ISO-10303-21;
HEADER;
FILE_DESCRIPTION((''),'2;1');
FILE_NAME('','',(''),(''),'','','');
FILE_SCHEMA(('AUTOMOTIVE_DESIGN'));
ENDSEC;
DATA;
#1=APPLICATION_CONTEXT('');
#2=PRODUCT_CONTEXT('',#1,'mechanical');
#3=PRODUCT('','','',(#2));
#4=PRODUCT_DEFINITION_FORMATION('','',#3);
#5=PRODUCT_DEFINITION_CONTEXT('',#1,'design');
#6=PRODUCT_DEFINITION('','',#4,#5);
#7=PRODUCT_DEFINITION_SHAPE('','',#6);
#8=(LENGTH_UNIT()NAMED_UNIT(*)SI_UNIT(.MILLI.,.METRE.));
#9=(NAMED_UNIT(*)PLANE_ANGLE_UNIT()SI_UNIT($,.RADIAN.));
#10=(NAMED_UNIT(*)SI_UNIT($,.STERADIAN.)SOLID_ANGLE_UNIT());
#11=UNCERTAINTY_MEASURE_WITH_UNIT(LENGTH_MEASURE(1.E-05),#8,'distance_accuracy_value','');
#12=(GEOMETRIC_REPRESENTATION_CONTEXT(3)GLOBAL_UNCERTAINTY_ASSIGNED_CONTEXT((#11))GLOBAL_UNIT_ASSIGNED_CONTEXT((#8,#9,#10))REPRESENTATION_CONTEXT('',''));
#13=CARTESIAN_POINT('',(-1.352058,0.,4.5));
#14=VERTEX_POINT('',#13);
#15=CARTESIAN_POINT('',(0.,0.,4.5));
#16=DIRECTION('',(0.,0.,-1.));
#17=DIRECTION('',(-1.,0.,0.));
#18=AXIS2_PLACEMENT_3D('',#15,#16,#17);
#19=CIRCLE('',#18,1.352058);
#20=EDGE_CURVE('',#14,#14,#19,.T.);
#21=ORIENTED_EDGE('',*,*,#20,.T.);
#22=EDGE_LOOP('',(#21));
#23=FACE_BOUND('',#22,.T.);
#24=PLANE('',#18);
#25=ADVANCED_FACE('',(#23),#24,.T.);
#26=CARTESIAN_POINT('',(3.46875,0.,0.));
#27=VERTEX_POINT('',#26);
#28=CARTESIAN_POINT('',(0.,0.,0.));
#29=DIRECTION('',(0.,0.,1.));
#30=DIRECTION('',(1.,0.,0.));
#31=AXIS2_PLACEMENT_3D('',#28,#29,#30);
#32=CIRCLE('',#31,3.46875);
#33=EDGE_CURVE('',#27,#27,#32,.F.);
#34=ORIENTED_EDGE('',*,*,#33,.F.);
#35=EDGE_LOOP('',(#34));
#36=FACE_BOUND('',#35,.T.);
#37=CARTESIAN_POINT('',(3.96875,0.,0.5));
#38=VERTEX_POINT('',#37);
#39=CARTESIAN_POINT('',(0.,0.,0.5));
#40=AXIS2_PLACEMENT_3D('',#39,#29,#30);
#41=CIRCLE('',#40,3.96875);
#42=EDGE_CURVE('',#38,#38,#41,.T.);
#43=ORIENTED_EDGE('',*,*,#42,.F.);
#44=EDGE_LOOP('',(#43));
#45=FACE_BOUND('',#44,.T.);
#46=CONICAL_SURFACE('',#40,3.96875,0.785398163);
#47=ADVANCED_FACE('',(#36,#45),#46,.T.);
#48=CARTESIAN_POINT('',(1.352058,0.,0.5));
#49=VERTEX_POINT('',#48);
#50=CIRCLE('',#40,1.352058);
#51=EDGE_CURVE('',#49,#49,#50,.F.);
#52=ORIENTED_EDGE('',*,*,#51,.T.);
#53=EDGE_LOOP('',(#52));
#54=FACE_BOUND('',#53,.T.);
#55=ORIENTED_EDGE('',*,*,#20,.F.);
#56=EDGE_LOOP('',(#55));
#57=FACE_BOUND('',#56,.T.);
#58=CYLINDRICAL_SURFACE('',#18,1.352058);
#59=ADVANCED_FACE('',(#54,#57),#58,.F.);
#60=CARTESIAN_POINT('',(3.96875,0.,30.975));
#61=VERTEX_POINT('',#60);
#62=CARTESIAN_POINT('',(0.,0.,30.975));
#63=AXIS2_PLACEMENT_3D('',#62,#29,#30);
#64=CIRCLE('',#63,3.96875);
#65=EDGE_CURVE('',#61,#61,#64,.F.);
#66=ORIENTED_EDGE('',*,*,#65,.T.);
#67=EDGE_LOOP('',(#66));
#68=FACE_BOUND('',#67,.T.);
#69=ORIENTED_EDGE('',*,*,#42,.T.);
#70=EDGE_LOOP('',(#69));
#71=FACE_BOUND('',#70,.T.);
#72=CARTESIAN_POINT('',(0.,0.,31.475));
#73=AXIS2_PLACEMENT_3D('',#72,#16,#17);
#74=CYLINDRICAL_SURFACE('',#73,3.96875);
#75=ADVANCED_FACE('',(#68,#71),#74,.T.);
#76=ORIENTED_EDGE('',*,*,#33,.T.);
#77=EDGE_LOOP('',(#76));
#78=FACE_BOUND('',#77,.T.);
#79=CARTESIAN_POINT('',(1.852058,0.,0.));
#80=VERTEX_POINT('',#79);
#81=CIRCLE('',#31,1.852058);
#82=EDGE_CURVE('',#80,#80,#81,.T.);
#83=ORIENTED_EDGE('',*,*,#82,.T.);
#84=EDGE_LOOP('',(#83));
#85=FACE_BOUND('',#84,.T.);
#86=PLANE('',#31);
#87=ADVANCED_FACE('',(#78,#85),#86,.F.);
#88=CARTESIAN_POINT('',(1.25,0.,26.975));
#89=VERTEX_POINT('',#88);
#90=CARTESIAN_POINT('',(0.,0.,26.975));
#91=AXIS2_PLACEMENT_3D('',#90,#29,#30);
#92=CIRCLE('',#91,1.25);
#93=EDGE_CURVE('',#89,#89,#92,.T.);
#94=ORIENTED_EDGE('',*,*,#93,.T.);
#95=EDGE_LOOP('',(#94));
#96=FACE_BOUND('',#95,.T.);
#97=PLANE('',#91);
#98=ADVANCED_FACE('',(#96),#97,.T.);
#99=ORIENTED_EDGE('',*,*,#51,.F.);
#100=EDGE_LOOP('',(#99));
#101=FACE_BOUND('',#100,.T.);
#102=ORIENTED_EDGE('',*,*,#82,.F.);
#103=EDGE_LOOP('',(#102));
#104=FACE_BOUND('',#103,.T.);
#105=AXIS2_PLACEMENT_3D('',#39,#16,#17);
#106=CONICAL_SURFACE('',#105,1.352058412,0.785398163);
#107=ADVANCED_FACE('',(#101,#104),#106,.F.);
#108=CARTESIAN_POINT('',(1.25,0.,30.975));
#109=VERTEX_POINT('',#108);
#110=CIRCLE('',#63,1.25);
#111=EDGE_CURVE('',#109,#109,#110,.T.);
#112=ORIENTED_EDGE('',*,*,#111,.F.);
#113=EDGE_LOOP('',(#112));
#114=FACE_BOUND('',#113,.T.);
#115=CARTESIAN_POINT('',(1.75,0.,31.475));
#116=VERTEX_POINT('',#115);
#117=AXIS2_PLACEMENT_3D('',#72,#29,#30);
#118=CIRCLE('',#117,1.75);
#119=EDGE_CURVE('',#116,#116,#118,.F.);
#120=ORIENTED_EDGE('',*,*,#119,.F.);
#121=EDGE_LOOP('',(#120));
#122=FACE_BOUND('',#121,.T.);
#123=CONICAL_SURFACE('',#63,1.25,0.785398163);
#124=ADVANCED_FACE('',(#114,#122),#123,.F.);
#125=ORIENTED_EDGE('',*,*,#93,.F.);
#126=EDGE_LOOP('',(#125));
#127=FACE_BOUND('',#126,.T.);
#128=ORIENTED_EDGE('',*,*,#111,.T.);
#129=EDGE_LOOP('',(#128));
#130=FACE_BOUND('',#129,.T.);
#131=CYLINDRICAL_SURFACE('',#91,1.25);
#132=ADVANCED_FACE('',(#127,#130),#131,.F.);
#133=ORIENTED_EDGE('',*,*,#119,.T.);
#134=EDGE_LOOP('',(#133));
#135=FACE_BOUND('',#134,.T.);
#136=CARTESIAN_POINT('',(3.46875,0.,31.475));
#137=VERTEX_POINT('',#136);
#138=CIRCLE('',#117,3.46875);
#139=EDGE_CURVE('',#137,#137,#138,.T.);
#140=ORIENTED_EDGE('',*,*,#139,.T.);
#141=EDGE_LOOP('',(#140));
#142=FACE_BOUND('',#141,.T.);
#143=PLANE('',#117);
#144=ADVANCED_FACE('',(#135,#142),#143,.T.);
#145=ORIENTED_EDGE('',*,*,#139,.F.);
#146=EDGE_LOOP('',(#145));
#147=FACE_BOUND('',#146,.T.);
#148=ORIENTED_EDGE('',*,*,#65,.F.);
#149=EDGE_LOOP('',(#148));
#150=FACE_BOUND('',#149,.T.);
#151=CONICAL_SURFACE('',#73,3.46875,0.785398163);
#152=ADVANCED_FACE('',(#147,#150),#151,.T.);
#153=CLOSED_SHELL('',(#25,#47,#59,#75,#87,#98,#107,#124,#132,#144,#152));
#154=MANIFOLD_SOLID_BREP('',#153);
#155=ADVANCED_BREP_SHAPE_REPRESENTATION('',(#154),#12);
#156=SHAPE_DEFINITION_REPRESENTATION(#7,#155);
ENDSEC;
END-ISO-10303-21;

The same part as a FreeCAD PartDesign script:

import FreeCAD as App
import Part
import Sketcher
Q = App.Units.Quantity


def edges_at(feature, points):
    """Names of the edges that pass closest to the given points."""
    edges = feature.Shape.Edges
    near = lambda p: min(range(len(edges)), key=lambda i: edges[i].distToShape(Part.Vertex(*p))[0])
    return sorted({f"Edge{near(p) + 1}" for p in points})

doc = App.newDocument("Part")
body = doc.addObject("PartDesign::Body", "Body")

# Sketch on XY plane
sketch1 = body.newObject("Sketcher::SketchObject", "Sketch")
sketch1.AttachmentSupport = (doc.getObject("XY_Plane"), [""])
sketch1.MapMode = "FlatFace"
sketch1.addGeometry(Part.Circle(App.Vector(0, 0, 0), App.Vector(0, 0, 1), 4), False)
sketch1.addConstraint(Sketcher.Constraint("Coincident", 0, 3, -1, 1))
sketch1.addConstraint(Sketcher.Constraint("Diameter", 0, Q("7.9375 mm")))
pad1 = body.newObject("PartDesign::Pad", "Pad")
pad1.Profile = sketch1
pad1.Length = 31.475

# Sketch on XY plane
sketch2 = body.newObject("Sketcher::SketchObject", "Sketch001")
sketch2.AttachmentSupport = (doc.getObject("XY_Plane"), [""])
sketch2.MapMode = "FlatFace"
sketch2.AttachmentOffset = App.Placement(App.Vector(0, 0, 31.475), App.Rotation())
sketch2.addGeometry(Part.Circle(App.Vector(0, 0, 0), App.Vector(0, 0, 1), 1.2), False)
sketch2.addConstraint(Sketcher.Constraint("Coincident", 0, 3, -1, 1))
sketch2.addConstraint(Sketcher.Constraint("Diameter", 0, Q("2.5 mm")))
pocket1 = body.newObject("PartDesign::Pocket", "Pocket")
pocket1.Profile = sketch2
pocket1.Length = 4.5

# Sketch on XY plane
sketch3 = body.newObject("Sketcher::SketchObject", "Sketch002")
sketch3.AttachmentSupport = (doc.getObject("XY_Plane"), [""])
sketch3.MapMode = "FlatFace"
sketch3.addGeometry(Part.Circle(App.Vector(0, 0, 0), App.Vector(0, 0, 1), 1.4), False)
sketch3.addConstraint(Sketcher.Constraint("Coincident", 0, 3, -1, 1))
sketch3.addConstraint(Sketcher.Constraint("Diameter", 0, Q("2.704117 mm")))
pocket2 = body.newObject("PartDesign::Pocket", "Pocket001")
pocket2.Profile = sketch3
pocket2.Length = 4.5
pocket2.Reversed = True
doc.recompute()

chamfer = body.newObject("PartDesign::Chamfer", "Chamfer")
chamfer.Base = (pocket2, edges_at(pocket2, [
    (1.352, 0, 0),
    (-3.969, 0, 0),
    (-3.969, 0, 31.475),
    (-1.25, 0, 31.475),
]))
chamfer.Size = 0.5

doc.recompute()
